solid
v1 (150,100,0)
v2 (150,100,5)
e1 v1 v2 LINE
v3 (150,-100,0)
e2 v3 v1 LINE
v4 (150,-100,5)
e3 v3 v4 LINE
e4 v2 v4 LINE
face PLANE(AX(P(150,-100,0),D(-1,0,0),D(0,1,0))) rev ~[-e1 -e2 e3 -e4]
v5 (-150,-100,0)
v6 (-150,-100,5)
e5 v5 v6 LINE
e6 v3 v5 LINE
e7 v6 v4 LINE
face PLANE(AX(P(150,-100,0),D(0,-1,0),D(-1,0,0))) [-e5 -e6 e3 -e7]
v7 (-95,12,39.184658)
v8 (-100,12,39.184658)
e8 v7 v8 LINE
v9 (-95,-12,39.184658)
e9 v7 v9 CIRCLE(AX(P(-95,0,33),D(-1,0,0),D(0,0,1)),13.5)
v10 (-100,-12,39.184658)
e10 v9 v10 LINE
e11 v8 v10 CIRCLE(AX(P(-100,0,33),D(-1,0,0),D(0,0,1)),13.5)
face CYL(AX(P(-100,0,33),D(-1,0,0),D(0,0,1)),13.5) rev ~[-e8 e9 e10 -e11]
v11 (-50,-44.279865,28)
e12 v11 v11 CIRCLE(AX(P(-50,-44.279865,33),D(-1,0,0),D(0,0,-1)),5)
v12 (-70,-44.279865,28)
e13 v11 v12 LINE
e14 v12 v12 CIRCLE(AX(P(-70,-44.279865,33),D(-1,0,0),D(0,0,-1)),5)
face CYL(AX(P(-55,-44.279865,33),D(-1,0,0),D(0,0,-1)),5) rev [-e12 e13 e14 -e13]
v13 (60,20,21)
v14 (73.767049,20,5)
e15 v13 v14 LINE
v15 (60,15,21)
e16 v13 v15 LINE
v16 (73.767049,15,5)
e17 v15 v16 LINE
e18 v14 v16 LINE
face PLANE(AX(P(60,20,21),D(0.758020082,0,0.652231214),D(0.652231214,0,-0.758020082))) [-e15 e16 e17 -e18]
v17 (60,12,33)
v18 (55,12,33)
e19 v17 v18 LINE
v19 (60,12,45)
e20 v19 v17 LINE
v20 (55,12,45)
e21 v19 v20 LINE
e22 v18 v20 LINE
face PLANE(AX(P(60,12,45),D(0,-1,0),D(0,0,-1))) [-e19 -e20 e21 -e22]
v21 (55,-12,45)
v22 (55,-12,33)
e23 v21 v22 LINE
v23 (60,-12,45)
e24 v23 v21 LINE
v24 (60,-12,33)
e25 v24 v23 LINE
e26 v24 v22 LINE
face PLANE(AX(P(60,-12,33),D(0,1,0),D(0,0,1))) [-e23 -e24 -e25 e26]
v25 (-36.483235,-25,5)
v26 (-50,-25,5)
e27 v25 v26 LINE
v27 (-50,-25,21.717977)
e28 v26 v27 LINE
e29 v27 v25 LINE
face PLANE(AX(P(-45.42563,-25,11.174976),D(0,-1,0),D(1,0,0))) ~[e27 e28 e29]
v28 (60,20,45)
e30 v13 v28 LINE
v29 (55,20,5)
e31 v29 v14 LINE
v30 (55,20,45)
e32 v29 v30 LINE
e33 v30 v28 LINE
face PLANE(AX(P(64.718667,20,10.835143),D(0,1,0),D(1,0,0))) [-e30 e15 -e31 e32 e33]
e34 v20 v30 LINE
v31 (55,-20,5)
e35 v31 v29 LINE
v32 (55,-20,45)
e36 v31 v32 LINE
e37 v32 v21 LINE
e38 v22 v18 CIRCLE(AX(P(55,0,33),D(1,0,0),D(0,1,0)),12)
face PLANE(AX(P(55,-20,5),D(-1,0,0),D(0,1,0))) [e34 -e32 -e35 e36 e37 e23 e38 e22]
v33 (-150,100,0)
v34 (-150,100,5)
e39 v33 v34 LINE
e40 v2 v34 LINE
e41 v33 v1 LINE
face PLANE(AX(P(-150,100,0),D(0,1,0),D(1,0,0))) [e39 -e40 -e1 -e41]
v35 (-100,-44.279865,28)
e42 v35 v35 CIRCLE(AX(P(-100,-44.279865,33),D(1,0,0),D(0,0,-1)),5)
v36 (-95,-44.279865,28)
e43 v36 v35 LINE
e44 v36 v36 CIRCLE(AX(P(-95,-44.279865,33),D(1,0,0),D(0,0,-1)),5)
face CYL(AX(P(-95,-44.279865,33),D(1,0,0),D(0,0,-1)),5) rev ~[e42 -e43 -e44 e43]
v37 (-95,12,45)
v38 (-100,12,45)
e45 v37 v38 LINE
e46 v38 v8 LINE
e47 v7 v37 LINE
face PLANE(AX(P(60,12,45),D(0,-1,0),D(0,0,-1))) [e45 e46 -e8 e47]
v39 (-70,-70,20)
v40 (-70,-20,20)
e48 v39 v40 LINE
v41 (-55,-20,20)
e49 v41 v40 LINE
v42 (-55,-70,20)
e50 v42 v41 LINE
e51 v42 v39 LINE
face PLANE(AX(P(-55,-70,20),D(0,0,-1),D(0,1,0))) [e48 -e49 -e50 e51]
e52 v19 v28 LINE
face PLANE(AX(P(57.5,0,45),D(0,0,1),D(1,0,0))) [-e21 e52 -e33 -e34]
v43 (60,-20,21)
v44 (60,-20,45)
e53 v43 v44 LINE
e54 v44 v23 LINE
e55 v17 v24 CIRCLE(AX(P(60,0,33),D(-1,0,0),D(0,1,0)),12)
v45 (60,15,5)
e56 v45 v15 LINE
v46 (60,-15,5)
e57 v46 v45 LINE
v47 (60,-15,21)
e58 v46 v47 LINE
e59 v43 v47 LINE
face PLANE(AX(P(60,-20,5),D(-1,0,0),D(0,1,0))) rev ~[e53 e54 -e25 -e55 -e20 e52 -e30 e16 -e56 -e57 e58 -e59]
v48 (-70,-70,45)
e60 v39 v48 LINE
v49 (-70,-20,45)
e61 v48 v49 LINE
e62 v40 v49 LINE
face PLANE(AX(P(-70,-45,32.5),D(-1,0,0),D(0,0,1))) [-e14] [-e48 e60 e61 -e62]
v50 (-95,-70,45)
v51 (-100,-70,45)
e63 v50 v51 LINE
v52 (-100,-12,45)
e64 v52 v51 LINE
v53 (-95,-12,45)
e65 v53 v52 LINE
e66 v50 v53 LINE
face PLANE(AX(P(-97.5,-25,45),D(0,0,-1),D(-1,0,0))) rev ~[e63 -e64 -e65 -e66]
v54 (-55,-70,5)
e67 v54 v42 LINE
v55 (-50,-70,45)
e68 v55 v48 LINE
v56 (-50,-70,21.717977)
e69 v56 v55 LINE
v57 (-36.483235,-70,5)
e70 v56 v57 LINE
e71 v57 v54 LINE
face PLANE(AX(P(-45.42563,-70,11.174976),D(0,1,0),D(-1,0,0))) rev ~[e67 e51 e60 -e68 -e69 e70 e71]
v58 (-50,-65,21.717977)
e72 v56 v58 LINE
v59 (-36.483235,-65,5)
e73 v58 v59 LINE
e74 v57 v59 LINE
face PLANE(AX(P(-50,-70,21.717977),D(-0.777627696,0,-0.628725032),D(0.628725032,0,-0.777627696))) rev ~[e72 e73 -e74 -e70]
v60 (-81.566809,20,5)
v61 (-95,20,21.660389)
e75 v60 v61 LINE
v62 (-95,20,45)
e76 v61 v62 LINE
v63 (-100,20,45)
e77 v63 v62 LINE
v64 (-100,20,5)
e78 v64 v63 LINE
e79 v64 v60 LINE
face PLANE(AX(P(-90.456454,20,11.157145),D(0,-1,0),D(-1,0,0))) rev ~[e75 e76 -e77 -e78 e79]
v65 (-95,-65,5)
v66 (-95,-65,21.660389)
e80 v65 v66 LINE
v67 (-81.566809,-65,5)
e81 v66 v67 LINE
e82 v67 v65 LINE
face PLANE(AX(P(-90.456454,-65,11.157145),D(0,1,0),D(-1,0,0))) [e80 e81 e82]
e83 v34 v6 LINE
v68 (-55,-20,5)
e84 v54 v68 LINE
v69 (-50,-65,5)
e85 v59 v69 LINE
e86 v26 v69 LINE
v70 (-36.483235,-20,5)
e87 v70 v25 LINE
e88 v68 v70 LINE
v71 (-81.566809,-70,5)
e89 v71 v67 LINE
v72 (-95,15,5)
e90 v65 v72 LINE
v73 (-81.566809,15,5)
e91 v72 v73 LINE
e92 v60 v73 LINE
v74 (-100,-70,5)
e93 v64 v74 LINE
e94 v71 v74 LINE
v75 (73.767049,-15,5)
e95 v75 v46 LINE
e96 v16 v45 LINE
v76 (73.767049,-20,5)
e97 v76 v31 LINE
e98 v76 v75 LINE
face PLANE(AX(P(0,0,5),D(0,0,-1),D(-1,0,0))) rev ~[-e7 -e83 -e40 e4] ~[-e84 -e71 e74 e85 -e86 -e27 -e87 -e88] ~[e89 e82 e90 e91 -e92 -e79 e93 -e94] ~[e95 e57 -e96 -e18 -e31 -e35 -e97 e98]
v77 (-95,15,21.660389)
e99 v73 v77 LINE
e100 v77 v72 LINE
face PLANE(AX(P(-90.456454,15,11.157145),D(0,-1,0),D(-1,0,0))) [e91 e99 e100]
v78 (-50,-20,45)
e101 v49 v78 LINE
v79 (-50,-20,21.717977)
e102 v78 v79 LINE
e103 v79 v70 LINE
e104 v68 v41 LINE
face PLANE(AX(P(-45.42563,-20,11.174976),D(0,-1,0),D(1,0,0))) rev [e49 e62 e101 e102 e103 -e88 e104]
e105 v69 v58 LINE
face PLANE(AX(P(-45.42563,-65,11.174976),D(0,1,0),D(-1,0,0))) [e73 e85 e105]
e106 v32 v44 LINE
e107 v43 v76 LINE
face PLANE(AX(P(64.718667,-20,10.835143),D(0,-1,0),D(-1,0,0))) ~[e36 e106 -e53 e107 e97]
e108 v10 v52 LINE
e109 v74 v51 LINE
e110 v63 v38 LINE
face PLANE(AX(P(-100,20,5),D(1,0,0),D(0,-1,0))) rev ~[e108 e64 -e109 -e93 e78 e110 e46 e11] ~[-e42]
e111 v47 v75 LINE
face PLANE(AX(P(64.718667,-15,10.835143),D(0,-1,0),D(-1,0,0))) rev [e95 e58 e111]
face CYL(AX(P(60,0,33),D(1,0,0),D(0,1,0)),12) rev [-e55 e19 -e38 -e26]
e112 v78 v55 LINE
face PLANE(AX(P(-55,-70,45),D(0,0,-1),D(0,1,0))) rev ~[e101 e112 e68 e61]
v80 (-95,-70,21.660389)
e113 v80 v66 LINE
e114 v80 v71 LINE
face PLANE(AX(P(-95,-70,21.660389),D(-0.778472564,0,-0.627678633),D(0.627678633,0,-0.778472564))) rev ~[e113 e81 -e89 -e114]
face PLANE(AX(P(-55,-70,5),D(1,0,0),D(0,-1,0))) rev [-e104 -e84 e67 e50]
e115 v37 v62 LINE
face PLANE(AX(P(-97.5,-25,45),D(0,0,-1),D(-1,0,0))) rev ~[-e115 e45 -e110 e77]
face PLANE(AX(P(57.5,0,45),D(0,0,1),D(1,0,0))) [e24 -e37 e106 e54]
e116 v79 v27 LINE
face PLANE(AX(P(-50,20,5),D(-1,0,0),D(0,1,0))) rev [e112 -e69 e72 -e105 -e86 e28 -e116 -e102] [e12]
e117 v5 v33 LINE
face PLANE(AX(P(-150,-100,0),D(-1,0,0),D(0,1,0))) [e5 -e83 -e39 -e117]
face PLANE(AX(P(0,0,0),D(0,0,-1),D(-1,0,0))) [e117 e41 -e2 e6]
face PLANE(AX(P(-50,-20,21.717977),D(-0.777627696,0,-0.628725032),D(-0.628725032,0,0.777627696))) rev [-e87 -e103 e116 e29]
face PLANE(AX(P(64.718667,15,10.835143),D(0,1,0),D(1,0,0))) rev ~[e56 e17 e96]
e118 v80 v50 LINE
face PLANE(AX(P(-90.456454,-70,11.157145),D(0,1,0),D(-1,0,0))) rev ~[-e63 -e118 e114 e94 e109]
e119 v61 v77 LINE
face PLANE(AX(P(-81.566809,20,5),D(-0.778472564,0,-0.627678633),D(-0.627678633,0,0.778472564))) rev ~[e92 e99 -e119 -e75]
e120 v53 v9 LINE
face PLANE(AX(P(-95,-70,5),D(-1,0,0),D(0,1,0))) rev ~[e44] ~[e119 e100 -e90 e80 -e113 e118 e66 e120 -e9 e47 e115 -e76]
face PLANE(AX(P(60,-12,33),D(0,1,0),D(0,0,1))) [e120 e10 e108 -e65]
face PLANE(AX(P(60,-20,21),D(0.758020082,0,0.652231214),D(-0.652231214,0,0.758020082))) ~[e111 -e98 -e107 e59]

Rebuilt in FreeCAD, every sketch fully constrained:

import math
import FreeCAD as App
import Part
import Sketcher

V = App.Vector


def add_polygon(sketch, points):
    """Adds a closed chain of lines whose ends are joined by coincident constraints."""
    first, n = sketch.GeometryCount, len(points)
    for a, b in zip(points, points[1:] + points[:1]):
        sketch.addGeometry(Part.LineSegment(App.Vector(*a, 0), App.Vector(*b, 0)), False)
    for i in range(n):
        sketch.addConstraint(Sketcher.Constraint("Coincident", first + i, 2, first + (i + 1) % n, 1))

doc = App.newDocument("Part")
body = doc.addObject("PartDesign::Body", "Body")

sketch1 = doc.addObject("Sketcher::SketchObject", "Sketch")
body.addObject(sketch1)
sketch1.AttachmentSupport = (doc.XY_Plane, [""])
sketch1.MapMode = "FlatFace"
add_polygon(sketch1, [(-150, 100), (-150, -100), (150, -100), (150, 100)])
sketch1.addConstraint([
    Sketcher.Constraint("Vertical", 0),
    Sketcher.Constraint("Horizontal", 1),
    Sketcher.Constraint("Vertical", 2),
    Sketcher.Constraint("Horizontal", 3),
    Sketcher.Constraint("Symmetric", 0, 2, 2, 2, -1, 1),
    Sketcher.Constraint("DistanceX", 1, 1, 1, 2, 300.0),
    Sketcher.Constraint("DistanceY", 0, 2, 0, 1, 200.0),
])
pad1 = doc.addObject("PartDesign::Pad", "Pad")
body.addObject(pad1)
pad1.Profile = sketch1
pad1.Length = 5

sketch2 = doc.addObject("Sketcher::SketchObject", "Sketch001")
body.addObject(sketch2)
sketch2.AttachmentSupport = (doc.XY_Plane, [""])
sketch2.MapMode = "FlatFace"
sketch2.AttachmentOffset = App.Placement(V(0, 0, 5), App.Rotation())
add_polygon(sketch2, [(-150, -80), (-150, -100), (-130, -100), (-130, -80)])
add_polygon(sketch2, [(-150, 100), (-150, 60), (-130, 60), (-130, 100)])
add_polygon(sketch2, [(130, 100), (130, 60), (150, 60), (150, 100)])
add_polygon(sketch2, [(130, -80), (130, -100), (150, -100), (150, -80)])
sketch2.addConstraint([
    Sketcher.Constraint("Vertical", 0),
    Sketcher.Constraint("Horizontal", 1),
    Sketcher.Constraint("Vertical", 2),
    Sketcher.Constraint("Horizontal", 3),
    Sketcher.Constraint("Vertical", 4),
    Sketcher.Constraint("Horizontal", 5),
    Sketcher.Constraint("Vertical", 6),
    Sketcher.Constraint("Horizontal", 7),
    Sketcher.Constraint("Vertical", 8),
    Sketcher.Constraint("Horizontal", 9),
    Sketcher.Constraint("Vertical", 10),
    Sketcher.Constraint("Horizontal", 11),
    Sketcher.Constraint("Vertical", 12),
    Sketcher.Constraint("Horizontal", 13),
    Sketcher.Constraint("Vertical", 14),
    Sketcher.Constraint("Horizontal", 15),
    Sketcher.Constraint("Symmetric", 0, 2, 10, 2, -1, 1),
    Sketcher.Constraint("Symmetric", 6, 2, 12, 2, -1, 1),
    Sketcher.Constraint("Symmetric", 5, 2, 8, 2, -2),
    Sketcher.Constraint("Symmetric", 7, 2, 10, 2, -2),
    Sketcher.Constraint("Symmetric", 3, 2, 14, 2, -2),
    Sketcher.Constraint("Vertical", 2, 2, 5, 2),
    Sketcher.Constraint("Equal", 15, 0),
    Sketcher.Constraint("DistanceX", 1, 1, 1, 2, 20.0),
    Sketcher.Constraint("DistanceY", 4, 2, 4, 1, 40.0),
    Sketcher.Constraint("DistanceX", 0, 2, -1, 1, 150.0),
    Sketcher.Constraint("DistanceY", 0, 2, -1, 1, 100.0),
])
pocket1 = doc.addObject("PartDesign::Pocket", "Pocket")
body.addObject(pocket1)
pocket1.Profile = sketch2
pocket1.Length = 5

sketch3 = doc.addObject("Sketcher::SketchObject", "Sketch002")
body.addObject(sketch3)
sketch3.AttachmentSupport = (doc.XY_Plane, [""])
sketch3.MapMode = "FlatFace"
add_polygon(sketch3, [(150, -60), (150, -100), (130, -100), (130, -60)])
add_polygon(sketch3, [(-130, -60), (-130, -100), (-150, -100), (-150, -60)])
sketch3.addConstraint([
    Sketcher.Constraint("Vertical", 0),
    Sketcher.Constraint("Horizontal", 1),
    Sketcher.Constraint("Vertical", 2),
    Sketcher.Constraint("Horizontal", 3),
    Sketcher.Constraint("Vertical", 4),
    Sketcher.Constraint("Horizontal", 5),
    Sketcher.Constraint("Vertical", 6),
    Sketcher.Constraint("Horizontal", 7),
    Sketcher.Constraint("Symmetric", 1, 2, 4, 2, -2),
    Sketcher.Constraint("Symmetric", 3, 2, 6, 2, -2),
    Sketcher.Constraint("DistanceX", 1, 2, 1, 1, 20.0),
    Sketcher.Constraint("DistanceY", 0, 2, 0, 1, 40.0),
    Sketcher.Constraint("DistanceX", -1, 1, 0, 2, 150.0),
    Sketcher.Constraint("DistanceY", 0, 2, -1, 1, 100.0),
])
pocket2 = doc.addObject("PartDesign::Pocket", "Pocket001")
body.addObject(pocket2)
pocket2.Profile = sketch3
pocket2.Length = 10
pocket2.Reversed = True

sketch4 = doc.addObject("Sketcher::SketchObject", "Sketch003")
body.addObject(sketch4)
sketch4.AttachmentSupport = (doc.XY_Plane, [""])
sketch4.MapMode = "FlatFace"
add_polygon(sketch4, [(150, 100), (150, -100), (-150, -100), (-150, 100)])
sketch4.addConstraint([
    Sketcher.Constraint("Vertical", 0),
    Sketcher.Constraint("Horizontal", 1),
    Sketcher.Constraint("Vertical", 2),
    Sketcher.Constraint("Horizontal", 3),
    Sketcher.Constraint("Symmetric", 0, 2, 2, 2, -1, 1),
    Sketcher.Constraint("DistanceX", 1, 2, 1, 1, 300.0),
    Sketcher.Constraint("DistanceY", 0, 2, 0, 1, 200.0),
])
pad2 = doc.addObject("PartDesign::Pad", "Pad001")
body.addObject(pad2)
pad2.Profile = sketch4
pad2.Length = 5

sketch5 = doc.addObject("Sketcher::SketchObject", "Sketch004")
body.addObject(sketch5)
sketch5.AttachmentSupport = (doc.XY_Plane, [""])
sketch5.MapMode = "FlatFace"
sketch5.AttachmentOffset = App.Placement(V(0, 0, 5), App.Rotation())
add_polygon(sketch5, [(-95, 20), (-100, 20), (-100, -70), (-95, -70)])
sketch5.addConstraint([
    Sketcher.Constraint("Horizontal", 0),
    Sketcher.Constraint("Vertical", 1),
    Sketcher.Constraint("Horizontal", 2),
    Sketcher.Constraint("Vertical", 3),
    Sketcher.Constraint("DistanceX", 0, 2, 0, 1, 5.0),
    Sketcher.Constraint("DistanceY", 1, 2, 1, 1, 90.0),
    Sketcher.Constraint("DistanceX", 0, 2, -1, 1, 100.0),
    Sketcher.Constraint("DistanceY", -1, 1, 0, 2, 20.0),
])
pad3 = doc.addObject("PartDesign::Pad", "Pad002")
body.addObject(pad3)
pad3.Profile = sketch5
pad3.Length = 40

sketch6 = doc.addObject("Sketcher::SketchObject", "Sketch005")
body.addObject(sketch6)
sketch6.AttachmentSupport = (doc.XY_Plane, [""])
sketch6.MapMode = "FlatFace"
sketch6.AttachmentOffset = App.Placement(V(0, 0, 5), App.Rotation())
add_polygon(sketch6, [(55, 20), (55, -20), (60, -20), (60, 20)])
sketch6.addConstraint([
    Sketcher.Constraint("Vertical", 0),
    Sketcher.Constraint("Horizontal", 1),
    Sketcher.Constraint("Vertical", 2),
    Sketcher.Constraint("Horizontal", 3),
    Sketcher.Constraint("DistanceX", 1, 1, 1, 2, 5.0),
    Sketcher.Constraint("DistanceY", 0, 2, 0, 1, 40.0),
    Sketcher.Constraint("DistanceX", -1, 1, 0, 2, 55.0),
    Sketcher.Constraint("DistanceY", 0, 2, -1, 1, 20.0),
])
pad4 = doc.addObject("PartDesign::Pad", "Pad003")
body.addObject(pad4)
pad4.Profile = sketch6
pad4.Length = 40

sketch7 = doc.addObject("Sketcher::SketchObject", "Sketch006")
body.addObject(sketch7)
sketch7.AttachmentSupport = (doc.YZ_Plane, [""])
sketch7.MapMode = "FlatFace"
sketch7.AttachmentOffset = App.Placement(V(0, 0, 60), App.Rotation())
sketch7.addGeometry([
    Part.LineSegment(V(12, 33, 0), V(12, 45, 0)),
    Part.LineSegment(V(12, 45, 0), V(-12, 45, 0)),
    Part.LineSegment(V(-12, 45, 0), V(-12, 33, 0)),
    Part.ArcOfCircle(Part.Circle(V(0, 33, 0), V(0, 0, 1), 12), math.radians(180), math.radians(360)),
], False)
sketch7.addConstraint([
    Sketcher.Constraint("Coincident", 0, 2, 1, 1),
    Sketcher.Constraint("Coincident", 1, 2, 2, 1),
    Sketcher.Constraint("Tangent", 2, 2, 3, 1),
    Sketcher.Constraint("Tangent", 3, 2, 0, 1),
    Sketcher.Constraint("Vertical", 0),
    Sketcher.Constraint("Horizontal", 1),
    Sketcher.Constraint("Vertical", 2),
    Sketcher.Constraint("PointOnObject", 3, 3, -2),
    Sketcher.Constraint("Radius", 3, 12.0),
    Sketcher.Constraint("DistanceY", 0, 1, 0, 2, 12.0),
    Sketcher.Constraint("DistanceY", -1, 1, 3, 3, 33.0),
])
pocket3 = doc.addObject("PartDesign::Pocket", "Pocket002")
body.addObject(pocket3)
pocket3.Profile = sketch7
pocket3.Length = 236

sketch8 = doc.addObject("Sketcher::SketchObject", "Sketch007")
body.addObject(sketch8)
sketch8.AttachmentSupport = (doc.YZ_Plane, [""])
sketch8.MapMode = "FlatFace"
sketch8.AttachmentOffset = App.Placement(V(0, 0, -95), App.Rotation())
sketch8.addGeometry(Part.Circle(V(-44, 33, 0), V(0, 0, 1), 5), False)
sketch8.addConstraint([
    Sketcher.Constraint("Diameter", 0, 10.0),
    Sketcher.Constraint("DistanceY", -1, 1, 0, 3, 33.0),
    Sketcher.Constraint("DistanceX", 0, 3, -1, 1, 44.279865),
])
pocket4 = doc.addObject("PartDesign::Pocket", "Pocket003")
body.addObject(pocket4)
pocket4.Profile = sketch8
pocket4.Length = 236

sketch9 = doc.addObject("Sketcher::SketchObject", "Sketch008")
body.addObject(sketch9)
sketch9.AttachmentSupport = (doc.XZ_Plane, [""])
sketch9.MapMode = "FlatFace"
sketch9.AttachmentOffset = App.Placement(V(0, 0, 70), App.Rotation())
add_polygon(sketch9, [(-82, 5), (-95, 22), (-95, 5)])
sketch9.addConstraint([
    Sketcher.Constraint("Vertical", 1),
    Sketcher.Constraint("Horizontal", 2),
    Sketcher.Constraint("DistanceX", 0, 2, -1, 1, 95.0),
    Sketcher.Constraint("DistanceY", -1, 1, 1, 2, 5.0),
    Sketcher.Constraint("DistanceX", 2, 1, 2, 2, 13.433191),
    Sketcher.Constraint("DistanceY", 1, 2, 1, 1, 16.660389),
])
pad5 = doc.addObject("PartDesign::Pad", "Pad004")
body.addObject(pad5)
pad5.Profile = sketch9
pad5.Length = 5
pad5.Reversed = True

sketch10 = doc.addObject("Sketcher::SketchObject", "Sketch009")
body.addObject(sketch10)
sketch10.AttachmentSupport = (doc.XZ_Plane, [""])
sketch10.MapMode = "FlatFace"
sketch10.AttachmentOffset = App.Placement(V(0, 0, -20), App.Rotation())
add_polygon(sketch10, [(60, 21), (74, 5), (60, 5)])
sketch10.addConstraint([
    Sketcher.Constraint("Horizontal", 1),
    Sketcher.Constraint("Vertical", 2),
    Sketcher.Constraint("DistanceY", 2, 1, 2, 2, 16.0),
    Sketcher.Constraint("DistanceY", -1, 1, 0, 2, 5.0),
    Sketcher.Constraint("DistanceX", -1, 1, 1, 2, 60.0),
    Sketcher.Constraint("DistanceX", 1, 2, 1, 1, 13.767049),
])
pad6 = doc.addObject("PartDesign::Pad", "Pad005")
body.addObject(pad6)
pad6.Profile = sketch10
pad6.Length = 5

sketch11 = doc.addObject("Sketcher::SketchObject", "Sketch010")
body.addObject(sketch11)
sketch11.AttachmentSupport = (doc.XZ_Plane, [""])
sketch11.MapMode = "FlatFace"
sketch11.AttachmentOffset = App.Placement(V(0, 0, -20), App.Rotation())
add_polygon(sketch11, [(-95, 22), (-82, 5), (-95, 5)])
sketch11.addConstraint([
    Sketcher.Constraint("Horizontal", 1),
    Sketcher.Constraint("Vertical", 2),
    Sketcher.Constraint("DistanceY", -1, 1, 0, 2, 5.0),
    Sketcher.Constraint("DistanceX", 1, 2, -1, 1, 95.0),
    Sketcher.Constraint("DistanceX", 1, 2, 1, 1, 13.433191),
    Sketcher.Constraint("DistanceY", 2, 1, 2, 2, 16.660389),
])
pad7 = doc.addObject("PartDesign::Pad", "Pad006")
body.addObject(pad7)
pad7.Profile = sketch11
pad7.Length = 5
doc.recompute()

mirrored = doc.addObject("PartDesign::Mirrored", "Mirrored")
body.addObject(mirrored)
mirrored.Originals = [pad6]
mirrored.MirrorPlane = (doc.XZ_Plane, [""])
body.Tip = mirrored
doc.recompute()

datumplane = doc.addObject("PartDesign::Plane", "DatumPlane")
body.addObject(datumplane)
datumplane.AttachmentSupport = (doc.YZ_Plane, [""])
datumplane.MapMode = "FlatFace"
datumplane.AttachmentOffset = App.Placement(V(0, 0, -75), App.Rotation())
mirrored2 = doc.addObject("PartDesign::Mirrored", "Mirrored001")
body.addObject(mirrored2)
mirrored2.Originals = [pad3, pocket4]
mirrored2.MirrorPlane = (datumplane, [""])
body.Tip = mirrored2

sketch12 = doc.addObject("Sketcher::SketchObject", "Sketch011")
body.addObject(sketch12)
sketch12.AttachmentSupport = (doc.YZ_Plane, [""])
sketch12.MapMode = "FlatFace"
sketch12.AttachmentOffset = App.Placement(V(0, 0, -55), App.Rotation())
add_polygon(sketch12, [(-20, 5), (-20, 45), (20, 45), (20, 5)])
sketch12.addConstraint([
    Sketcher.Constraint("Vertical", 0),
    Sketcher.Constraint("Horizontal", 1),
    Sketcher.Constraint("Vertical", 2),
    Sketcher.Constraint("Horizontal", 3),
    Sketcher.Constraint("Equal", 3, 0),
    Sketcher.Constraint("DistanceX", 1, 1, 1, 2, 40.0),
    Sketcher.Constraint("DistanceX", 0, 2, -1, 1, 20.0),
    Sketcher.Constraint("DistanceY", -1, 1, 0, 2, 45.0),
])
pocket5 = doc.addObject("PartDesign::Pocket", "Pocket004")
body.addObject(pocket5)
pocket5.Profile = sketch12
pocket5.Length = 10
pocket5.Reversed = True

sketch13 = doc.addObject("Sketcher::SketchObject", "Sketch012")
body.addObject(sketch13)
sketch13.AttachmentSupport = (doc.YZ_Plane, [""])
sketch13.MapMode = "FlatFace"
sketch13.AttachmentOffset = App.Placement(V(0, 0, -55), App.Rotation())
add_polygon(sketch13, [(-20, 20), (-70, 20), (-70, 45), (-20, 45)])
sketch13.addConstraint([
    Sketcher.Constraint("Horizontal", 0),
    Sketcher.Constraint("Vertical", 1),
    Sketcher.Constraint("Horizontal", 2),
    Sketcher.Constraint("Vertical", 3),
    Sketcher.Constraint("DistanceX", 0, 2, 0, 1, 50.0),
    Sketcher.Constraint("DistanceY", 1, 1, 1, 2, 25.0),
    Sketcher.Constraint("DistanceX", 0, 2, -1, 1, 70.0),
    Sketcher.Constraint("DistanceY", -1, 1, 0, 2, 20.0),
])
pad8 = doc.addObject("PartDesign::Pad", "Pad007")
body.addObject(pad8)
pad8.Profile = sketch13
pad8.Length = 15
pad8.Reversed = True

sketch14 = doc.addObject("Sketcher::SketchObject", "Sketch013")
body.addObject(sketch14)
sketch14.AttachmentSupport = (doc.XZ_Plane, [""])
sketch14.MapMode = "FlatFace"
sketch14.AttachmentOffset = App.Placement(V(0, 0, 70), App.Rotation())
add_polygon(sketch14, [(-36, 5), (-50, 22), (-50, 5)])
sketch14.addConstraint([
    Sketcher.Constraint("Vertical", 1),
    Sketcher.Constraint("Horizontal", 2),
    Sketcher.Constraint("DistanceX", 0, 2, -1, 1, 50.0),
    Sketcher.Constraint("DistanceY", -1, 1, 1, 2, 5.0),
    Sketcher.Constraint("Distance", 0, 21.49869),
    Sketcher.Constraint("DistanceX", 2, 1, 2, 2, 13.516765),
])
pad9 = doc.addObject("PartDesign::Pad", "Pad008")
body.addObject(pad9)
pad9.Profile = sketch14
pad9.Length = 5
pad9.Reversed = True
doc.recompute()

datumplane2 = doc.addObject("PartDesign::Plane", "DatumPlane001")
body.addObject(datumplane2)
datumplane2.AttachmentSupport = (doc.XZ_Plane, [""])
datumplane2.MapMode = "FlatFace"
datumplane2.AttachmentOffset = App.Placement(V(0, 0, 45), App.Rotation())
mirrored3 = doc.addObject("PartDesign::Mirrored", "Mirrored002")
body.addObject(mirrored3)
mirrored3.Originals = [pad9]
mirrored3.MirrorPlane = (datumplane2, [""])
body.Tip = mirrored3

sketch15 = doc.addObject("Sketcher::SketchObject", "Sketch014")
body.addObject(sketch15)
sketch15.AttachmentSupport = (doc.YZ_Plane, [""])
sketch15.MapMode = "FlatFace"
sketch15.AttachmentOffset = App.Placement(V(0, 0, -75), App.Rotation())
sketch15.addGeometry(Part.Circle(V(-44, 33, 0), V(0, 0, 1), 5), False)
sketch15.addConstraint([
    Sketcher.Constraint("Diameter", 0, 10.0),
    Sketcher.Constraint("DistanceY", -1, 1, 0, 3, 33.0),
    Sketcher.Constraint("DistanceX", 0, 3, -1, 1, 44.279865),
])
pocket6 = doc.addObject("PartDesign::Pocket", "Pocket005")
body.addObject(pocket6)
pocket6.Profile = sketch15
pocket6.Length = 39
pocket6.Reversed = True

sketch16 = doc.addObject("Sketcher::SketchObject", "Sketch015")
body.addObject(sketch16)
sketch16.AttachmentSupport = (doc.YZ_Plane, [""])
sketch16.MapMode = "FlatFace"
sketch16.AttachmentOffset = App.Placement(V(0, 0, -100), App.Rotation())
sketch16.addGeometry(Part.Circle(V(0, 33, 0), V(0, 0, 1), 14), False)
sketch16.addConstraint([
    Sketcher.Constraint("PointOnObject", 0, 3, -2),
    Sketcher.Constraint("Diameter", 0, 27.0),
    Sketcher.Constraint("DistanceY", -1, 1, 0, 3, 33.0),
])
pocket7 = doc.addObject("PartDesign::Pocket", "Pocket006")
body.addObject(pocket7)
pocket7.Profile = sketch16
pocket7.Length = 10
pocket7.Reversed = True

doc.recompute()
